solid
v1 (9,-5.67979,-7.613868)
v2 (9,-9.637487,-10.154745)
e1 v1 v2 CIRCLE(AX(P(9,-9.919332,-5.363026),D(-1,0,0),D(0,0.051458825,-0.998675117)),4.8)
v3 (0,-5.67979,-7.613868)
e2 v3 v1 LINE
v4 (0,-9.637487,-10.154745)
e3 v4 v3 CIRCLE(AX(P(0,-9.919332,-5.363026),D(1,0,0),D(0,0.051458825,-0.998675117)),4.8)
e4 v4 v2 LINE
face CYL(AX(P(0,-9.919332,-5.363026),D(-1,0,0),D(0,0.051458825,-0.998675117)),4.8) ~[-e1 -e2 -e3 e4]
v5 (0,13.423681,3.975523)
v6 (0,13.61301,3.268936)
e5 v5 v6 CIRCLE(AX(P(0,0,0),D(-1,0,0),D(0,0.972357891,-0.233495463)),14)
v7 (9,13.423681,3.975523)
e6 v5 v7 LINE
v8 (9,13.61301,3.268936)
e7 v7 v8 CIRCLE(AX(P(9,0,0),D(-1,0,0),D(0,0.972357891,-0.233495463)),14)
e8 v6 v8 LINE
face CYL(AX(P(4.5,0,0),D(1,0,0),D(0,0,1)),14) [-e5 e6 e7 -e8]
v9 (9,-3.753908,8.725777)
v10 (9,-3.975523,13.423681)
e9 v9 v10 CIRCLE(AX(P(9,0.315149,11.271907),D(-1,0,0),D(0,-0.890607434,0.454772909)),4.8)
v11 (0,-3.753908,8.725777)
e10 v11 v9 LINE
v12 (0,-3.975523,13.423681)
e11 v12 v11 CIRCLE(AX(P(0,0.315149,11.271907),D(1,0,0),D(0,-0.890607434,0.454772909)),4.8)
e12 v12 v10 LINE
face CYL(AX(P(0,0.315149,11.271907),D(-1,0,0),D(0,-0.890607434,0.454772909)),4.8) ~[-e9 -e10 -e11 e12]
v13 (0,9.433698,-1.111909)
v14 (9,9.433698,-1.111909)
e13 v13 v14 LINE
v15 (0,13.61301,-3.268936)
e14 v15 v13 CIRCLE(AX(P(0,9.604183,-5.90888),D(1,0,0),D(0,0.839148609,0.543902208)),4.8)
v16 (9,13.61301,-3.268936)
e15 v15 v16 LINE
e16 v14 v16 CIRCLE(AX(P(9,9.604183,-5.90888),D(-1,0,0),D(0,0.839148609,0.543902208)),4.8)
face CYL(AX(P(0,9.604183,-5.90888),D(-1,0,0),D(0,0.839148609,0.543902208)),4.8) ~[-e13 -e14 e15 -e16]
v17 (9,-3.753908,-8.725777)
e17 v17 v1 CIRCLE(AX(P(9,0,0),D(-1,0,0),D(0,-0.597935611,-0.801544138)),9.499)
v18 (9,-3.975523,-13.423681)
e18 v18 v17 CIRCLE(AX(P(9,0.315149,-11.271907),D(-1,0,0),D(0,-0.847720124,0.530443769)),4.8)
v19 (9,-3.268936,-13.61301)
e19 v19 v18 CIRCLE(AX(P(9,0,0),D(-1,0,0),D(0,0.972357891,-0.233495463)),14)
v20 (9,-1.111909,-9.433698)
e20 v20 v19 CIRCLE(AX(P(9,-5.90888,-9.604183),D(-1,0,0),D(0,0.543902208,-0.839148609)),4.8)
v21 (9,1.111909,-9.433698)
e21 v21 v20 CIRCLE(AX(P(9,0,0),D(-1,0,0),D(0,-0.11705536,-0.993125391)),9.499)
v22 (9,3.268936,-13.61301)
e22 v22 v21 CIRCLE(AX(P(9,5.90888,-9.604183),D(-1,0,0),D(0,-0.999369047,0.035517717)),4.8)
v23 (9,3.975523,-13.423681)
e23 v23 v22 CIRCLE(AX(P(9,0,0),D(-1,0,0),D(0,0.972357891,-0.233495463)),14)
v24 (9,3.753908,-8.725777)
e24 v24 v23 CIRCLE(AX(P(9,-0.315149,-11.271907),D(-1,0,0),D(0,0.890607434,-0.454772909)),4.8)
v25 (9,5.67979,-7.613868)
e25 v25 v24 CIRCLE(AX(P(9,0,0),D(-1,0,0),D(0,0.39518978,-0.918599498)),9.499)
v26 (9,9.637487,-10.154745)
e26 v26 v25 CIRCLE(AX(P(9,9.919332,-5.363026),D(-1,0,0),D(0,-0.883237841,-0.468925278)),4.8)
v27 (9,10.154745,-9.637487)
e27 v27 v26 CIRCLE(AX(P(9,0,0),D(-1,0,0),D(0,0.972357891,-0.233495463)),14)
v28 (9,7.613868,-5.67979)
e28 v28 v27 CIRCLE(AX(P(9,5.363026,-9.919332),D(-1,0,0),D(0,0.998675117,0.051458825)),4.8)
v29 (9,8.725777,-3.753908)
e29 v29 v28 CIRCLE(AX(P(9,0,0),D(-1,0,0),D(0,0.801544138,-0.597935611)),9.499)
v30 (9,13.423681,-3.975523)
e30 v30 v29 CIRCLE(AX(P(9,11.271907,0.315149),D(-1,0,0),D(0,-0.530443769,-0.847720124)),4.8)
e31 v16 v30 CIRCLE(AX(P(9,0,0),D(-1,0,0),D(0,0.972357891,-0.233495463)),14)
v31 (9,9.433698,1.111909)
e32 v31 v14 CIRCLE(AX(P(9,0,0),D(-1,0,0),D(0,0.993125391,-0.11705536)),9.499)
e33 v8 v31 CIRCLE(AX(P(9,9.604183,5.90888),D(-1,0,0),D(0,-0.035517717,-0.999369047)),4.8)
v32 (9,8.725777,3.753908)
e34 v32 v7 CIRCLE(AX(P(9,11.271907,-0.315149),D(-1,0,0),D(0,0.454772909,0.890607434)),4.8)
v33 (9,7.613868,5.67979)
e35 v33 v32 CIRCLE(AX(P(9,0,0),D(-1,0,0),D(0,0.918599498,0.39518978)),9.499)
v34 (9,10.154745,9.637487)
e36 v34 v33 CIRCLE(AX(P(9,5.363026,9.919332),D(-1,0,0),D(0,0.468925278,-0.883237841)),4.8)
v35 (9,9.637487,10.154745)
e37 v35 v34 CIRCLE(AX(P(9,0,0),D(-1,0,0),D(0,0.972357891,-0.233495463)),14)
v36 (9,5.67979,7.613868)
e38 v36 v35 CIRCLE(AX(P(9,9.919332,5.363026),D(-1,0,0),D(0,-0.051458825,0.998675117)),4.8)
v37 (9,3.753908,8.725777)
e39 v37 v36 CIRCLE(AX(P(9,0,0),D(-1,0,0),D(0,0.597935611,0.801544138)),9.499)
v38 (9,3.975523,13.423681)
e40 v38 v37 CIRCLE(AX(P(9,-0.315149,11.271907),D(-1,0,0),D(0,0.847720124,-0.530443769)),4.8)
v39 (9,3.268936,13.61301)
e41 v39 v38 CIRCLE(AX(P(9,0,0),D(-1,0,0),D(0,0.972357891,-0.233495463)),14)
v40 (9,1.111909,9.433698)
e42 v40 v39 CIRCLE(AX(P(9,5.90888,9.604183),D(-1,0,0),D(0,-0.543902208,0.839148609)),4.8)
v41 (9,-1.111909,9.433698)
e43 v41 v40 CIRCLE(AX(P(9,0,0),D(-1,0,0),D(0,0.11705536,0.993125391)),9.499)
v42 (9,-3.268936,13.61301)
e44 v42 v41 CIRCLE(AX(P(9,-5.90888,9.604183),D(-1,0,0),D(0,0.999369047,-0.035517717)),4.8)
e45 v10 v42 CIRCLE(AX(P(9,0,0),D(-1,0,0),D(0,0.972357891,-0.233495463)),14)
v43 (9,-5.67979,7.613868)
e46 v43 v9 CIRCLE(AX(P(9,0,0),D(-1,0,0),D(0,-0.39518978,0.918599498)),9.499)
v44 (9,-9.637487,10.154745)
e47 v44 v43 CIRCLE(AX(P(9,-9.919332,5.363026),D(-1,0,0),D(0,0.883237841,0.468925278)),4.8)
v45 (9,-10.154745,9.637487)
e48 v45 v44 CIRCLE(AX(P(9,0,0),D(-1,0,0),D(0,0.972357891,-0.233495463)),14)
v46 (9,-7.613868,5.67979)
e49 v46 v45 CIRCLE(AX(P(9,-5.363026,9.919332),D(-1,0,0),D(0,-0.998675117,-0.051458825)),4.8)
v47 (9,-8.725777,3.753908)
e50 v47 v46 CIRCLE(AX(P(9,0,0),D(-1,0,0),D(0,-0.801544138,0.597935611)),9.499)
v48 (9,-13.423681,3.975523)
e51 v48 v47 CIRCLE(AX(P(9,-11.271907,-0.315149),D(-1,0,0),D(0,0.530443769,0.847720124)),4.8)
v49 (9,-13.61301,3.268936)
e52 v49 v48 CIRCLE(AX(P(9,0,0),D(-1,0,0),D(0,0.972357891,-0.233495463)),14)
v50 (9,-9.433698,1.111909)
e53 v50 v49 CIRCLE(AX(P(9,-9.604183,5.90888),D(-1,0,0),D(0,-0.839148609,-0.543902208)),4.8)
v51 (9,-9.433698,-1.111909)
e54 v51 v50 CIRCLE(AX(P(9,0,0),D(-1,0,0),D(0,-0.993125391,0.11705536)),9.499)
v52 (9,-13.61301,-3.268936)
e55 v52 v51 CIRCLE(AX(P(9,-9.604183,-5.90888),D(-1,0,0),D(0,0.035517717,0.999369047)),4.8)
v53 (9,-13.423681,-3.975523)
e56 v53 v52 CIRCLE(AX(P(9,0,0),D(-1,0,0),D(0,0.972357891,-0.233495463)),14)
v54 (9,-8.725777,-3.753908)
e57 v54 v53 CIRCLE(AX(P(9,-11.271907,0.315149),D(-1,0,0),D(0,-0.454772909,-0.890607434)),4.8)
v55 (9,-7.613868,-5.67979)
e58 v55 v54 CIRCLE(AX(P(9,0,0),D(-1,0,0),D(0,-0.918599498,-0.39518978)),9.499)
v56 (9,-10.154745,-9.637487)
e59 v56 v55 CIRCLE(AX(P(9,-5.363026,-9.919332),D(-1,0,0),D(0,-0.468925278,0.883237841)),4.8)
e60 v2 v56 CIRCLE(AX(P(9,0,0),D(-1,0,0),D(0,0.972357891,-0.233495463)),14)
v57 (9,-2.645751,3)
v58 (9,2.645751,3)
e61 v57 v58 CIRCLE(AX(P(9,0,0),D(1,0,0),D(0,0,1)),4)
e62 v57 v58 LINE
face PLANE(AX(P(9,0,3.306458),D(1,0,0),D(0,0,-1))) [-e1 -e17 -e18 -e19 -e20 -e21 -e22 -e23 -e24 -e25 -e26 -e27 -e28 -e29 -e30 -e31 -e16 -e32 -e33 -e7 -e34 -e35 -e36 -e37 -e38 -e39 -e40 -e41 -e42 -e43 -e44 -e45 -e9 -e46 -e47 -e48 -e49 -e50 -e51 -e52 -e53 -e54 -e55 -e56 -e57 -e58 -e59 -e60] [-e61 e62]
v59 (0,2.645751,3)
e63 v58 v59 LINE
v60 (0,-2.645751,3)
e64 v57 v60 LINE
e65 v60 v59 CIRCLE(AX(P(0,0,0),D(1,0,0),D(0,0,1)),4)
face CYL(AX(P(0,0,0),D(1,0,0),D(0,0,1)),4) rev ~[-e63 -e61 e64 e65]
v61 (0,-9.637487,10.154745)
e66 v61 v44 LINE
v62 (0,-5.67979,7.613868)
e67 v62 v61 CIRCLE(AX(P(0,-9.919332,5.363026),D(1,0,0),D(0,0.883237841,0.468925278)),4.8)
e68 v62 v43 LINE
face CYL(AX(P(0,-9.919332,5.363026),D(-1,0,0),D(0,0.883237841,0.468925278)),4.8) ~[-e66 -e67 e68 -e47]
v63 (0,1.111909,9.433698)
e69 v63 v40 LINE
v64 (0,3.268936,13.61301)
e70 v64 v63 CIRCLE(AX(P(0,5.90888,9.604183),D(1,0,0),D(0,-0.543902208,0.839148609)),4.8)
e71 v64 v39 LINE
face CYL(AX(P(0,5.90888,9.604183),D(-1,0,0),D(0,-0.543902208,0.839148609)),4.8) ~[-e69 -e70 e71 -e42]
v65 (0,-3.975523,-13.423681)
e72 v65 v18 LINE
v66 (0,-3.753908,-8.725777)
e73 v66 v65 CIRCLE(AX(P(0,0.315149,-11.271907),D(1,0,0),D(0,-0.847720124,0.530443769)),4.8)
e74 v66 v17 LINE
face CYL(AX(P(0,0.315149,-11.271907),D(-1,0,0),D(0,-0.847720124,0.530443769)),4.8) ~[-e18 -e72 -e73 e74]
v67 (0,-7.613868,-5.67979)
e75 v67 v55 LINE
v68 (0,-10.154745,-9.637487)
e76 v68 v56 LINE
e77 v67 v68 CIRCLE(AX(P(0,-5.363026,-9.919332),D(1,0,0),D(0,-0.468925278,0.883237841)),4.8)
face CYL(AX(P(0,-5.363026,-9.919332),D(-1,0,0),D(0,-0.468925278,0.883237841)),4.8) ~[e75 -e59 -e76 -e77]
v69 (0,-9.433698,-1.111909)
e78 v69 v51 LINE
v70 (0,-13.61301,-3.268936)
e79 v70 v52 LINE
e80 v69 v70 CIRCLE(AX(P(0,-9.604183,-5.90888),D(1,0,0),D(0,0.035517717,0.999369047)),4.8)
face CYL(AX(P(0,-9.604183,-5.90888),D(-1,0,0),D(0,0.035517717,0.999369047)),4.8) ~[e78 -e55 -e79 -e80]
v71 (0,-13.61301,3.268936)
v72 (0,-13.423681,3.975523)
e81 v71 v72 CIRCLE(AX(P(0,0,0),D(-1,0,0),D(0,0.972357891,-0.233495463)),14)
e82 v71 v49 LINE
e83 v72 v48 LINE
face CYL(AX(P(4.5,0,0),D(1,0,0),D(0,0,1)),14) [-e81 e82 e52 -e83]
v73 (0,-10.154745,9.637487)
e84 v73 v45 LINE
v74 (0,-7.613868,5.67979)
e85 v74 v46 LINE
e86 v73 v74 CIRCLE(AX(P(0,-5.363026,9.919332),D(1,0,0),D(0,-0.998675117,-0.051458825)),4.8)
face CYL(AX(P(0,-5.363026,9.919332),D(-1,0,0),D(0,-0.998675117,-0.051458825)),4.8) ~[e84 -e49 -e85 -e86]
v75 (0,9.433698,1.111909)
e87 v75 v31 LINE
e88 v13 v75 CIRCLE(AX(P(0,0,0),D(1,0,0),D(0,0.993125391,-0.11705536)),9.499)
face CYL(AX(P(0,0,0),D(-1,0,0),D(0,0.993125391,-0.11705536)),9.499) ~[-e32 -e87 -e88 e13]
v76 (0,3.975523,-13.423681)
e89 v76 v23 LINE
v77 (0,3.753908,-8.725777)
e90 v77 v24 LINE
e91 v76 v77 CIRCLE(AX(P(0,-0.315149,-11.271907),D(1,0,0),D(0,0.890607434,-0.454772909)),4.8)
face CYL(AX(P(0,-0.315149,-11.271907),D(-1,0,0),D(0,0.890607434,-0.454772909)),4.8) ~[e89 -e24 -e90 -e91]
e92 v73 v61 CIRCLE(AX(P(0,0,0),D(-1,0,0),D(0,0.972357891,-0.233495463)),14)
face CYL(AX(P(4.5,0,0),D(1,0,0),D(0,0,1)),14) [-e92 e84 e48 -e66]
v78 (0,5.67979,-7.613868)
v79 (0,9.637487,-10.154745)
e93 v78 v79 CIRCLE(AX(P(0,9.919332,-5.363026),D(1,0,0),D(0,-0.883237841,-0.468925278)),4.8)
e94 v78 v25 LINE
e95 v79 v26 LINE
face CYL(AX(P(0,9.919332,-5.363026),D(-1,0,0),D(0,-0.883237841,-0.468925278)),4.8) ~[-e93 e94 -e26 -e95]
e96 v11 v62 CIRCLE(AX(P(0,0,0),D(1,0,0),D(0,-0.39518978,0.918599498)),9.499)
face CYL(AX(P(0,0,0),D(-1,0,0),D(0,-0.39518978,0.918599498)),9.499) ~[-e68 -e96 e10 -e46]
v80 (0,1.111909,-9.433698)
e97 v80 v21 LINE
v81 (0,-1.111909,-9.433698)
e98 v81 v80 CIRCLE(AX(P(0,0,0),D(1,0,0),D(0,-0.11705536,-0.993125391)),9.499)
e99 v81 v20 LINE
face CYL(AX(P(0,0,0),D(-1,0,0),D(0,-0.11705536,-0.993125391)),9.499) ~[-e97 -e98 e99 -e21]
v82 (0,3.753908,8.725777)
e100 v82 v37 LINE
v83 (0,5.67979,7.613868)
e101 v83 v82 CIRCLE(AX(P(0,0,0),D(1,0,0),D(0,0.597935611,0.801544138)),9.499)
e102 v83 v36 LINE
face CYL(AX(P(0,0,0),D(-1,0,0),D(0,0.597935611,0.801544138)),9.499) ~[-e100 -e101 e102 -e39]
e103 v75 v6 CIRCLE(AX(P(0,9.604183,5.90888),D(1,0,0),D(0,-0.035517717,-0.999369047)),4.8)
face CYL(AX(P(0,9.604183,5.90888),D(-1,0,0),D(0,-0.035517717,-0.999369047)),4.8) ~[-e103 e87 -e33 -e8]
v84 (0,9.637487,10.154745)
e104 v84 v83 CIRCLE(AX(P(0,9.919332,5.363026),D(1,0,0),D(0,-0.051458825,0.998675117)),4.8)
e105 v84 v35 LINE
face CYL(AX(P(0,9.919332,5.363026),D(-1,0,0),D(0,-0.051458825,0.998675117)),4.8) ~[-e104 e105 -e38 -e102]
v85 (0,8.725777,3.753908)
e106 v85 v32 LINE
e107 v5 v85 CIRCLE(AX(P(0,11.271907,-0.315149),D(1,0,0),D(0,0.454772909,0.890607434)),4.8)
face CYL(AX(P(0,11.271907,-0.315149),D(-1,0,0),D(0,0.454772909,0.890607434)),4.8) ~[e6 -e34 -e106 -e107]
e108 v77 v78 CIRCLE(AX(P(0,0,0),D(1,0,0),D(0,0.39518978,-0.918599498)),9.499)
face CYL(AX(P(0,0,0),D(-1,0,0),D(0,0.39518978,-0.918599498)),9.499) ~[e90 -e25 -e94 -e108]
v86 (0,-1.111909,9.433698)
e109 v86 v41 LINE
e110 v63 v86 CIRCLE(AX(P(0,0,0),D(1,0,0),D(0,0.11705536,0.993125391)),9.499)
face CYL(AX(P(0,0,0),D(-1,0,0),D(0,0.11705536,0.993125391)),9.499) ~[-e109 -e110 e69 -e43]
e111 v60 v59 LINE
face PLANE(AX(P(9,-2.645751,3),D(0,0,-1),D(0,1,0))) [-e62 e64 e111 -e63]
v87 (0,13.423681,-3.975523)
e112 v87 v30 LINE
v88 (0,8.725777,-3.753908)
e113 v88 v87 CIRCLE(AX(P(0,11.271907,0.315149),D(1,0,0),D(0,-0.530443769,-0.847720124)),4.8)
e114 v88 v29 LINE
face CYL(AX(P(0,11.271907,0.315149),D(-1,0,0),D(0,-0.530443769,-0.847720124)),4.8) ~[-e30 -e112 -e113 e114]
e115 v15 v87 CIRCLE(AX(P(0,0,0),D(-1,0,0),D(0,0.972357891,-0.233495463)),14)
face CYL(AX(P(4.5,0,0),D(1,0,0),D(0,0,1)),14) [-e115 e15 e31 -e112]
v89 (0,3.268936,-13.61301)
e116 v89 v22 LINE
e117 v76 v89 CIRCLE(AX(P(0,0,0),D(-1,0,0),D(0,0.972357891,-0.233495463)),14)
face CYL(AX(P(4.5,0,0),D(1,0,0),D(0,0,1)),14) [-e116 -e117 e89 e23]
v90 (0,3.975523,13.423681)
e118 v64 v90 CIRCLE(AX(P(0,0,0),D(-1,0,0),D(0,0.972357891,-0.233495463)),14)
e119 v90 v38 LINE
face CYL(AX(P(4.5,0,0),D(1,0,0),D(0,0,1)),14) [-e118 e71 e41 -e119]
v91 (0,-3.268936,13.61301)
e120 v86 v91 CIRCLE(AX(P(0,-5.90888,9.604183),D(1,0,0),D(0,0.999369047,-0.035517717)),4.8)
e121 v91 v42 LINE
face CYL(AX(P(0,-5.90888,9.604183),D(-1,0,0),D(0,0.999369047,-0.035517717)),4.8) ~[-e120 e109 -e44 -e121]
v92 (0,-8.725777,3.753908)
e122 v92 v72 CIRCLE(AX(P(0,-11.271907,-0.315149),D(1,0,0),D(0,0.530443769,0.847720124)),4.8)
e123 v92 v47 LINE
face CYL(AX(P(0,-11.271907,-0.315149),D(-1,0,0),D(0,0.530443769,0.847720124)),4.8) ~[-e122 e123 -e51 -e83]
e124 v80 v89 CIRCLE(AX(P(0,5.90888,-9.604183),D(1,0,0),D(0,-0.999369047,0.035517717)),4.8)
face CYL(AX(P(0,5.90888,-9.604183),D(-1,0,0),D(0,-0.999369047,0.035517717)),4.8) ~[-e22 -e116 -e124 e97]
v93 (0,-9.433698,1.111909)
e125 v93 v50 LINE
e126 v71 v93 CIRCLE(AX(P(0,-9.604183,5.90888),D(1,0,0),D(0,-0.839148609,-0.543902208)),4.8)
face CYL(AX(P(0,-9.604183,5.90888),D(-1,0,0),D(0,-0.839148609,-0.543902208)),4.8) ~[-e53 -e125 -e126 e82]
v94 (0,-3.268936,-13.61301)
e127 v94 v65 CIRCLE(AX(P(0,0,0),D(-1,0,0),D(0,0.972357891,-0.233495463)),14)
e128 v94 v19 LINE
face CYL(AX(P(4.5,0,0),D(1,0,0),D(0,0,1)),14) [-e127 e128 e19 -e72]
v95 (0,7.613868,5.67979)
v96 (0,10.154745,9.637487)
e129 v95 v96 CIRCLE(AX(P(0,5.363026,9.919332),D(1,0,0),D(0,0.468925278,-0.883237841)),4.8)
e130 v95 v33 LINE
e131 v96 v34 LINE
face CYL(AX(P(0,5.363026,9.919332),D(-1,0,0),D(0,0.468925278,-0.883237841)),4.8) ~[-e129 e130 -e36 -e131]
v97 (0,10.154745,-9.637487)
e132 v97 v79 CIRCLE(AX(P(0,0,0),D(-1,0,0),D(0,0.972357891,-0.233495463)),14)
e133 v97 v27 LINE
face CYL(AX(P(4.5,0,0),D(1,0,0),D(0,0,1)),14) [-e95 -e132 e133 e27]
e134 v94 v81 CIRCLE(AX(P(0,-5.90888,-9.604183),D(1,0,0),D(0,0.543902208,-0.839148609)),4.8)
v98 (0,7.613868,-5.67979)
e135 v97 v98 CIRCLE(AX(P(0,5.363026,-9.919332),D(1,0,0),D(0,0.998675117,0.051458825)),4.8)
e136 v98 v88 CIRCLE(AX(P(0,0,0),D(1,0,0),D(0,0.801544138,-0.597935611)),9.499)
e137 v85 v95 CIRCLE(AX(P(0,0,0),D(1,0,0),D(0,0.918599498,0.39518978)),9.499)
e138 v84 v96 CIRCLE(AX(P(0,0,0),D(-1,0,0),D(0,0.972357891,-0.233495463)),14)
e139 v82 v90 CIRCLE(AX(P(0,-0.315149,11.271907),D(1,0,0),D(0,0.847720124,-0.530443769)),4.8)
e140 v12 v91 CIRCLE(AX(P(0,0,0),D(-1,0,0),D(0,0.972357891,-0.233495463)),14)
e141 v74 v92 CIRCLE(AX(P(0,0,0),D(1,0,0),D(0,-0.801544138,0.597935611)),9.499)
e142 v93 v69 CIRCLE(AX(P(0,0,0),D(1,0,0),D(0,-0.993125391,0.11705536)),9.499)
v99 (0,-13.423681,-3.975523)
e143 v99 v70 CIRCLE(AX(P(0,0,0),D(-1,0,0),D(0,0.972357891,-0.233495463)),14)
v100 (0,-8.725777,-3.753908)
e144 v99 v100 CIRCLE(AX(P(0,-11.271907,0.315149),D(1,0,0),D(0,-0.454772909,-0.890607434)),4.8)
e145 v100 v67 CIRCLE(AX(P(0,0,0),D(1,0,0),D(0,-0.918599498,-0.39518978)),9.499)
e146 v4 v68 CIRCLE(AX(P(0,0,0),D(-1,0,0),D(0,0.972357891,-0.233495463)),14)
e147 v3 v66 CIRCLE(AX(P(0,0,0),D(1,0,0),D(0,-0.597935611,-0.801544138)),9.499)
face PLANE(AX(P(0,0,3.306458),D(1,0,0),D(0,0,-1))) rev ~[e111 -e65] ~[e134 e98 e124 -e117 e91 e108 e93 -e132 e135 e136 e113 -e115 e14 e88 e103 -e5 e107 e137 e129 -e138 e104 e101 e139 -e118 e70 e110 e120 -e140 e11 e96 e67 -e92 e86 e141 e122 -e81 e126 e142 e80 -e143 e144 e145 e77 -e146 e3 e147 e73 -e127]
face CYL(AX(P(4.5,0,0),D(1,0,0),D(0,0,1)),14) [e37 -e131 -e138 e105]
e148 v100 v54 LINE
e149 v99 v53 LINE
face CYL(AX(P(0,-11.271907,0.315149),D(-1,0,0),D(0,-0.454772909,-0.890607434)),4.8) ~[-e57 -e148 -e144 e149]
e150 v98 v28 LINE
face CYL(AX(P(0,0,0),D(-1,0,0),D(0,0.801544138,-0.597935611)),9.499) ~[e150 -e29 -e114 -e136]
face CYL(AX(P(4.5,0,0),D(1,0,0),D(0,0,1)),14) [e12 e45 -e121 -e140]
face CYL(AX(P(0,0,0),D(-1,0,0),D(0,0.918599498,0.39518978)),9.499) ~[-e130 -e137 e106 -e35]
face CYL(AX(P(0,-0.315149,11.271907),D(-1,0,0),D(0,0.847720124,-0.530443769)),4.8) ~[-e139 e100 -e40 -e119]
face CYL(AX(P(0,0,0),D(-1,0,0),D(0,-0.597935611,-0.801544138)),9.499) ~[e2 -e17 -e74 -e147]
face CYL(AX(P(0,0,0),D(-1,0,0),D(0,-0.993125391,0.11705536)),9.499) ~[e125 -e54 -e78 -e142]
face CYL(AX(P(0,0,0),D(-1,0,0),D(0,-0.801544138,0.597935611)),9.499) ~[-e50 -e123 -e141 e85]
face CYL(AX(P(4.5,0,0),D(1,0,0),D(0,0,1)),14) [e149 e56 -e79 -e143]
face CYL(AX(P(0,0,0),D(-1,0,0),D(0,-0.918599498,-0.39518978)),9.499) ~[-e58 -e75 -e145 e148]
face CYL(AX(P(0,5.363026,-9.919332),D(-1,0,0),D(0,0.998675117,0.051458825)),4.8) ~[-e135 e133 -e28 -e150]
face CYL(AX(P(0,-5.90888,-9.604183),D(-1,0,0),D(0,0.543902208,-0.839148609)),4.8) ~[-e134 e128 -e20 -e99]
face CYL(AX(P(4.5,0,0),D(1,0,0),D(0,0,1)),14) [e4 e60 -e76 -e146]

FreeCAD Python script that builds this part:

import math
import FreeCAD as App
import Part
import Sketcher

V = App.Vector
Q = App.Units.Quantity

doc = App.newDocument("Part")
body = doc.addObject("PartDesign::Body", "Body")

sketch1 = doc.addObject("Sketcher::SketchObject", "Sketch")
body.addObject(sketch1)
sketch1.AttachmentSupport = (doc.XZ_Plane, [""])
sketch1.MapMode = "FlatFace"
sketch1.addGeometry(Part.LineSegment(V(0, -14, 0), V(0, 0, 0)), False)
sketch1.addGeometry(Part.LineSegment(V(0, 0, 0), V(9, 0, 0)), False)
sketch1.addGeometry(Part.LineSegment(V(9, 0, 0), V(9, -14, 0)), False)
sketch1.addGeometry(Part.LineSegment(V(9, -14, 0), V(0, -14, 0)), False)
sketch1.addConstraint(Sketcher.Constraint("Coincident", 0, 2, 1, 1))
sketch1.addConstraint(Sketcher.Constraint("Coincident", 1, 2, 2, 1))
sketch1.addConstraint(Sketcher.Constraint("Coincident", 2, 2, 3, 1))
sketch1.addConstraint(Sketcher.Constraint("Coincident", 3, 2, 0, 1))
sketch1.addConstraint(Sketcher.Constraint("Vertical", 0))
sketch1.addConstraint(Sketcher.Constraint("Horizontal", 1))
sketch1.addConstraint(Sketcher.Constraint("Vertical", 2))
sketch1.addConstraint(Sketcher.Constraint("Horizontal", 3))
sketch1.addConstraint(Sketcher.Constraint("Coincident", 0, 2, -1, 1))
sketch1.addConstraint(Sketcher.Constraint("DistanceX", 1, 1, 1, 2, Q("9 mm")))
sketch1.addConstraint(Sketcher.Constraint("DistanceY", 0, 1, 0, 2, Q("14 mm")))
revolution = doc.addObject("PartDesign::Revolution", "Revolution")
body.addObject(revolution)
revolution.Profile = sketch1
revolution.ReferenceAxis = (sketch1, ["H_Axis"])
revolution.Angle = 360

sketch2 = doc.addObject("Sketcher::SketchObject", "Sketch001")
body.addObject(sketch2)
sketch2.AttachmentSupport = (doc.YZ_Plane, [""])
sketch2.MapMode = "FlatFace"
sketch2.addGeometry(Part.ArcOfCircle(Part.Circle(V(0, 0, 0), V(0, 0, 1), 9.499), math.radians(-6.722189), math.radians(6.722189)), False)
sketch2.addGeometry(Part.ArcOfCircle(Part.Circle(V(9.604183, -5.90888, 0), V(0, 0, 1), 4.8), math.radians(32.949676), math.radians(92.035443)), False)
sketch2.addGeometry(Part.ArcOfCircle(Part.Circle(V(0, 0, 0), V(0, 0, 1), 14.0254), math.radians(-13.600788), math.radians(13.600788)), False)
sketch2.addGeometry(Part.ArcOfCircle(Part.Circle(V(9.604183, 5.90888, 0), V(0, 0, 1), 4.8), math.radians(-92.035443), math.radians(-32.949676)), False)
sketch2.addConstraint(Sketcher.Constraint("Coincident", 0, 1, 1, 2))
sketch2.addConstraint(Sketcher.Constraint("Coincident", 1, 1, 2, 1))
sketch2.addConstraint(Sketcher.Constraint("Coincident", 2, 2, 3, 2))
sketch2.addConstraint(Sketcher.Constraint("Coincident", 3, 1, 0, 2))
sketch2.addConstraint(Sketcher.Constraint("Coincident", 0, 3, -1, 1))
sketch2.addConstraint(Sketcher.Constraint("Coincident", 2, 3, -1, 1))
sketch2.addConstraint(Sketcher.Constraint("Equal", 1, 3))
sketch2.addConstraint(Sketcher.Constraint("Symmetric", 1, 3, 3, 3, -1))
sketch2.addConstraint(Sketcher.Constraint("Radius", 1, Q("4.8 mm")))
sketch2.addConstraint(Sketcher.Constraint("Radius", 0, Q("9.499 mm")))
sketch2.addConstraint(Sketcher.Constraint("Radius", 2, Q("14.0254 mm")))
sketch2.addConstraint(Sketcher.Constraint("DistanceX", -1, 1, 0, 1, Q("9.433698 mm")))
sketch2.addConstraint(Sketcher.Constraint("DistanceX", 0, 1, 1, 1, Q("4.198398 mm")))
pocket1 = doc.addObject("PartDesign::Pocket", "Pocket")
body.addObject(pocket1)
pocket1.Profile = sketch2
pocket1.Type = "ThroughAll"
pocket1.Reversed = True
doc.recompute()

polarpattern = doc.addObject("PartDesign::PolarPattern", "PolarPattern")
body.addObject(polarpattern)
polarpattern.Originals = [pocket1]
polarpattern.Axis = (doc.X_Axis, [""])
polarpattern.Angle = 360
polarpattern.Occurrences = 12
body.Tip = polarpattern

sketch3 = doc.addObject("Sketcher::SketchObject", "Sketch002")
body.addObject(sketch3)
sketch3.AttachmentSupport = (doc.YZ_Plane, [""])
sketch3.MapMode = "FlatFace"
sketch3.addGeometry(Part.Circle(V(0, 0, 0), V(0, 0, 1), 4), False)
sketch3.addConstraint(Sketcher.Constraint("Coincident", 0, 3, -1, 1))
sketch3.addConstraint(Sketcher.Constraint("Diameter", 0, Q("8 mm")))
pocket2 = doc.addObject("PartDesign::Pocket", "Pocket001")
body.addObject(pocket2)
pocket2.Profile = sketch3
pocket2.Length = 100.000102
pocket2.Midplane = True

sketch4 = doc.addObject("Sketcher::SketchObject", "Sketch003")
body.addObject(sketch4)
sketch4.AttachmentSupport = (doc.YZ_Plane, [""])
sketch4.MapMode = "FlatFace"
sketch4.AttachmentOffset = App.Placement(V(0, 0, 9), App.Rotation())
sketch4.addGeometry(Part.ArcOfCircle(Part.Circle(V(0, 0, 0), V(0, 0, 1), 4), math.radians(48.590378), math.radians(131.409622)), False)
sketch4.addGeometry(Part.LineSegment(V(-2.645751, 3, 0), V(2.645751, 3, 0)), False)
sketch4.addConstraint(Sketcher.Constraint("Coincident", 0, 1, 1, 2))
sketch4.addConstraint(Sketcher.Constraint("Coincident", 1, 1, 0, 2))
sketch4.addConstraint(Sketcher.Constraint("Horizontal", 1))
sketch4.addConstraint(Sketcher.Constraint("Coincident", 0, 3, -1, 1))
sketch4.addConstraint(Sketcher.Constraint("Radius", 0, Q("4 mm")))
sketch4.addConstraint(Sketcher.Constraint("DistanceY", -1, 1, 0, 1, Q("3 mm")))
pad1 = doc.addObject("PartDesign::Pad", "Pad")
body.addObject(pad1)
pad1.Profile = sketch4
pad1.Length = 9
pad1.Reversed = True

doc.recompute()
